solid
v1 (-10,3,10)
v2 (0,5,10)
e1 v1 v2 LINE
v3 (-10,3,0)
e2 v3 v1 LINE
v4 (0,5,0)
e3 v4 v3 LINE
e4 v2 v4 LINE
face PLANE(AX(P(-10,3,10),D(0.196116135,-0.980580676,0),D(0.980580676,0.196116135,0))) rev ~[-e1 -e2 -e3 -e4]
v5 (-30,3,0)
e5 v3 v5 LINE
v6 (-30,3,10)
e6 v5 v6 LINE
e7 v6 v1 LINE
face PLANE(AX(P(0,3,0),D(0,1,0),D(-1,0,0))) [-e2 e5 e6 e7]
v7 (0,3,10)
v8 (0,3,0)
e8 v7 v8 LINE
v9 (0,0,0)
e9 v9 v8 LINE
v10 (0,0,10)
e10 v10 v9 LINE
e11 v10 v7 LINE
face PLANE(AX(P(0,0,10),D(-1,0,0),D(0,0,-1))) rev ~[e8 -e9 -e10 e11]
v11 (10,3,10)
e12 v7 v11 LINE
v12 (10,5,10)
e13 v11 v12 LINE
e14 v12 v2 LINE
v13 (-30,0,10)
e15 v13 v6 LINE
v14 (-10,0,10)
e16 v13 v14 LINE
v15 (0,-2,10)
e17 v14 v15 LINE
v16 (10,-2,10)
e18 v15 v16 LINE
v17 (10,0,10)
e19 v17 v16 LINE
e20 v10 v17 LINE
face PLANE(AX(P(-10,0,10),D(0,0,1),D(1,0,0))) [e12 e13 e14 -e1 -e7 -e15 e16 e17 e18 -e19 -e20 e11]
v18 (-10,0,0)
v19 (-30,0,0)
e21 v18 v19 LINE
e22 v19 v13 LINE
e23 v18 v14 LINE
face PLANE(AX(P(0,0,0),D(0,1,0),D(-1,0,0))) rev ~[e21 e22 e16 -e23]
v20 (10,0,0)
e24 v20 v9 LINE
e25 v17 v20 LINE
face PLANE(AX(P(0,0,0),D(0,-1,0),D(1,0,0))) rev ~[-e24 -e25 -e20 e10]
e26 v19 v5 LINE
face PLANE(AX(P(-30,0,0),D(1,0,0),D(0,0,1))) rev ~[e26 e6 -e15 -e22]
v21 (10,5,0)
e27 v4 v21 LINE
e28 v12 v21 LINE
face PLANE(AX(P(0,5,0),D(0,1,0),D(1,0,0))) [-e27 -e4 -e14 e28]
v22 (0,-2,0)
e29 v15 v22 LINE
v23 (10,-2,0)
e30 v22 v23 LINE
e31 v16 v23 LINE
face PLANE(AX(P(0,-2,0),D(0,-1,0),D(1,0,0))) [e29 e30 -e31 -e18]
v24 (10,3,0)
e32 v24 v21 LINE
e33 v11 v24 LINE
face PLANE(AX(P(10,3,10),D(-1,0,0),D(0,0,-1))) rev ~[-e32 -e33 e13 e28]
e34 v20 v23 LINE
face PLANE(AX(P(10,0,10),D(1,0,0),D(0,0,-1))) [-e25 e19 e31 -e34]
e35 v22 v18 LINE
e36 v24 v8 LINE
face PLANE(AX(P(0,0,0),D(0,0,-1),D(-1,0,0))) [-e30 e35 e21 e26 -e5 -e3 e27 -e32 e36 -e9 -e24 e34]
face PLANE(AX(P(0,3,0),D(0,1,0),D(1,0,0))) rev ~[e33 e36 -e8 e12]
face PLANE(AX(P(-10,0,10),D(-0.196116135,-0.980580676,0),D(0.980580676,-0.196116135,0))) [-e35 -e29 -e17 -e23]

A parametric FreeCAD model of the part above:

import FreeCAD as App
import Part
import Sketcher
Q = App.Units.Quantity


def add_polygon(sketch, points):
    """Adds a closed chain of lines whose ends are joined by coincident constraints."""
    first, n = sketch.GeometryCount, len(points)
    for a, b in zip(points, points[1:] + points[:1]):
        sketch.addGeometry(Part.LineSegment(App.Vector(*a, 0), App.Vector(*b, 0)), False)
    for i in range(n):
        sketch.addConstraint(Sketcher.Constraint("Coincident", first + i, 2, first + (i + 1) % n, 1))

doc = App.newDocument("Part")
body = doc.addObject("PartDesign::Body", "Body")

sketch1 = body.newObject("Sketcher::SketchObject", "Sketch")
sketch1.AttachmentSupport = (doc.getObject("XZ_Plane"), [""])
sketch1.MapMode = "FlatFace"
add_polygon(sketch1, [(0, 10), (0, 0), (-30, 0), (-30, 10)])
sketch1.addConstraint(Sketcher.Constraint("Vertical", 0))
sketch1.addConstraint(Sketcher.Constraint("Horizontal", 1))
sketch1.addConstraint(Sketcher.Constraint("Vertical", 2))
sketch1.addConstraint(Sketcher.Constraint("Horizontal", 3))
sketch1.addConstraint(Sketcher.Constraint("Coincident", 0, 2, -1, 1))
sketch1.addConstraint(Sketcher.Constraint("DistanceX", 1, 2, 1, 1, Q("30 mm")))
sketch1.addConstraint(Sketcher.Constraint("DistanceY", 0, 2, 0, 1, Q("10 mm")))
pad1 = body.newObject("PartDesign::Pad", "Pad")
pad1.Profile = sketch1
pad1.Length = 3
pad1.Reversed = True

sketch2 = body.newObject("Sketcher::SketchObject", "Sketch001")
sketch2.AttachmentSupport = (doc.getObject("XZ_Plane"), [""])
sketch2.MapMode = "FlatFace"
sketch2.AttachmentOffset = App.Placement(App.Vector(0, 0, -3), App.Rotation())
add_polygon(sketch2, [(-10, 0), (-10, 10), (10, 10), (10, 0)])
sketch2.addConstraint(Sketcher.Constraint("Vertical", 0))
sketch2.addConstraint(Sketcher.Constraint("Horizontal", 1))
sketch2.addConstraint(Sketcher.Constraint("Vertical", 2))
sketch2.addConstraint(Sketcher.Constraint("Horizontal", 3))
sketch2.addConstraint(Sketcher.Constraint("Symmetric", 2, 2, 3, 2, -1, 1))
sketch2.addConstraint(Sketcher.Constraint("DistanceX", 1, 1, 1, 2, Q("20 mm")))
sketch2.addConstraint(Sketcher.Constraint("DistanceY", 0, 1, 0, 2, Q("10 mm")))
pad2 = body.newObject("PartDesign::Pad", "Pad001")
pad2.Profile = sketch2
pad2.Length = 2
pad2.Reversed = True

sketch3 = body.newObject("Sketcher::SketchObject", "Sketch002")
sketch3.AttachmentSupport = (doc.getObject("XZ_Plane"), [""])
sketch3.MapMode = "FlatFace"
add_polygon(sketch3, [(10, 10), (-10, 10), (-10, 0), (10, 0)])
sketch3.addConstraint(Sketcher.Constraint("Horizontal", 0))
sketch3.addConstraint(Sketcher.Constraint("Vertical", 1))
sketch3.addConstraint(Sketcher.Constraint("Horizontal", 2))
sketch3.addConstraint(Sketcher.Constraint("Vertical", 3))
sketch3.addConstraint(Sketcher.Constraint("Symmetric", 1, 2, 2, 2, -1, 1))
sketch3.addConstraint(Sketcher.Constraint("DistanceX", 0, 2, 0, 1, Q("20 mm")))
sketch3.addConstraint(Sketcher.Constraint("DistanceY", 1, 2, 1, 1, Q("10 mm")))
pad3 = body.newObject("PartDesign::Pad", "Pad002")
pad3.Profile = sketch3
pad3.Length = 2

sketch4 = body.newObject("Sketcher::SketchObject", "Sketch003")
sketch4.AttachmentSupport = (doc.getObject("XY_Plane"), [""])
sketch4.MapMode = "FlatFace"
sketch4.AttachmentOffset = App.Placement(App.Vector(0, 0, 10), App.Rotation())
add_polygon(sketch4, [(0, -2), (-10, 0), (-10, -2)])
add_polygon(sketch4, [(-10, 3), (0, 5), (-10, 5)])
sketch4.addConstraint(Sketcher.Constraint("Vertical", 1))
sketch4.addConstraint(Sketcher.Constraint("Horizontal", 2))
sketch4.addConstraint(Sketcher.Constraint("Horizontal", 4))
sketch4.addConstraint(Sketcher.Constraint("Vertical", 5))
sketch4.addConstraint(Sketcher.Constraint("PointOnObject", 0, 2, -1))
sketch4.addConstraint(Sketcher.Constraint("PointOnObject", 2, 2, -2))
sketch4.addConstraint(Sketcher.Constraint("PointOnObject", 3, 2, -2))
sketch4.addConstraint(Sketcher.Constraint("Vertical", 1, 2, 4, 2))
sketch4.addConstraint(Sketcher.Constraint("Equal", 1, 5))
sketch4.addConstraint(Sketcher.Constraint("DistanceX", 2, 1, 2, 2, Q("10 mm")))
sketch4.addConstraint(Sketcher.Constraint("DistanceY", 1, 2, 1, 1, Q("2 mm")))
sketch4.addConstraint(Sketcher.Constraint("DistanceY", -1, 1, 3, 2, Q("5 mm")))
pocket1 = body.newObject("PartDesign::Pocket", "Pocket")
pocket1.Profile = sketch4
pocket1.Type = "ThroughAll"

doc.recompute()
